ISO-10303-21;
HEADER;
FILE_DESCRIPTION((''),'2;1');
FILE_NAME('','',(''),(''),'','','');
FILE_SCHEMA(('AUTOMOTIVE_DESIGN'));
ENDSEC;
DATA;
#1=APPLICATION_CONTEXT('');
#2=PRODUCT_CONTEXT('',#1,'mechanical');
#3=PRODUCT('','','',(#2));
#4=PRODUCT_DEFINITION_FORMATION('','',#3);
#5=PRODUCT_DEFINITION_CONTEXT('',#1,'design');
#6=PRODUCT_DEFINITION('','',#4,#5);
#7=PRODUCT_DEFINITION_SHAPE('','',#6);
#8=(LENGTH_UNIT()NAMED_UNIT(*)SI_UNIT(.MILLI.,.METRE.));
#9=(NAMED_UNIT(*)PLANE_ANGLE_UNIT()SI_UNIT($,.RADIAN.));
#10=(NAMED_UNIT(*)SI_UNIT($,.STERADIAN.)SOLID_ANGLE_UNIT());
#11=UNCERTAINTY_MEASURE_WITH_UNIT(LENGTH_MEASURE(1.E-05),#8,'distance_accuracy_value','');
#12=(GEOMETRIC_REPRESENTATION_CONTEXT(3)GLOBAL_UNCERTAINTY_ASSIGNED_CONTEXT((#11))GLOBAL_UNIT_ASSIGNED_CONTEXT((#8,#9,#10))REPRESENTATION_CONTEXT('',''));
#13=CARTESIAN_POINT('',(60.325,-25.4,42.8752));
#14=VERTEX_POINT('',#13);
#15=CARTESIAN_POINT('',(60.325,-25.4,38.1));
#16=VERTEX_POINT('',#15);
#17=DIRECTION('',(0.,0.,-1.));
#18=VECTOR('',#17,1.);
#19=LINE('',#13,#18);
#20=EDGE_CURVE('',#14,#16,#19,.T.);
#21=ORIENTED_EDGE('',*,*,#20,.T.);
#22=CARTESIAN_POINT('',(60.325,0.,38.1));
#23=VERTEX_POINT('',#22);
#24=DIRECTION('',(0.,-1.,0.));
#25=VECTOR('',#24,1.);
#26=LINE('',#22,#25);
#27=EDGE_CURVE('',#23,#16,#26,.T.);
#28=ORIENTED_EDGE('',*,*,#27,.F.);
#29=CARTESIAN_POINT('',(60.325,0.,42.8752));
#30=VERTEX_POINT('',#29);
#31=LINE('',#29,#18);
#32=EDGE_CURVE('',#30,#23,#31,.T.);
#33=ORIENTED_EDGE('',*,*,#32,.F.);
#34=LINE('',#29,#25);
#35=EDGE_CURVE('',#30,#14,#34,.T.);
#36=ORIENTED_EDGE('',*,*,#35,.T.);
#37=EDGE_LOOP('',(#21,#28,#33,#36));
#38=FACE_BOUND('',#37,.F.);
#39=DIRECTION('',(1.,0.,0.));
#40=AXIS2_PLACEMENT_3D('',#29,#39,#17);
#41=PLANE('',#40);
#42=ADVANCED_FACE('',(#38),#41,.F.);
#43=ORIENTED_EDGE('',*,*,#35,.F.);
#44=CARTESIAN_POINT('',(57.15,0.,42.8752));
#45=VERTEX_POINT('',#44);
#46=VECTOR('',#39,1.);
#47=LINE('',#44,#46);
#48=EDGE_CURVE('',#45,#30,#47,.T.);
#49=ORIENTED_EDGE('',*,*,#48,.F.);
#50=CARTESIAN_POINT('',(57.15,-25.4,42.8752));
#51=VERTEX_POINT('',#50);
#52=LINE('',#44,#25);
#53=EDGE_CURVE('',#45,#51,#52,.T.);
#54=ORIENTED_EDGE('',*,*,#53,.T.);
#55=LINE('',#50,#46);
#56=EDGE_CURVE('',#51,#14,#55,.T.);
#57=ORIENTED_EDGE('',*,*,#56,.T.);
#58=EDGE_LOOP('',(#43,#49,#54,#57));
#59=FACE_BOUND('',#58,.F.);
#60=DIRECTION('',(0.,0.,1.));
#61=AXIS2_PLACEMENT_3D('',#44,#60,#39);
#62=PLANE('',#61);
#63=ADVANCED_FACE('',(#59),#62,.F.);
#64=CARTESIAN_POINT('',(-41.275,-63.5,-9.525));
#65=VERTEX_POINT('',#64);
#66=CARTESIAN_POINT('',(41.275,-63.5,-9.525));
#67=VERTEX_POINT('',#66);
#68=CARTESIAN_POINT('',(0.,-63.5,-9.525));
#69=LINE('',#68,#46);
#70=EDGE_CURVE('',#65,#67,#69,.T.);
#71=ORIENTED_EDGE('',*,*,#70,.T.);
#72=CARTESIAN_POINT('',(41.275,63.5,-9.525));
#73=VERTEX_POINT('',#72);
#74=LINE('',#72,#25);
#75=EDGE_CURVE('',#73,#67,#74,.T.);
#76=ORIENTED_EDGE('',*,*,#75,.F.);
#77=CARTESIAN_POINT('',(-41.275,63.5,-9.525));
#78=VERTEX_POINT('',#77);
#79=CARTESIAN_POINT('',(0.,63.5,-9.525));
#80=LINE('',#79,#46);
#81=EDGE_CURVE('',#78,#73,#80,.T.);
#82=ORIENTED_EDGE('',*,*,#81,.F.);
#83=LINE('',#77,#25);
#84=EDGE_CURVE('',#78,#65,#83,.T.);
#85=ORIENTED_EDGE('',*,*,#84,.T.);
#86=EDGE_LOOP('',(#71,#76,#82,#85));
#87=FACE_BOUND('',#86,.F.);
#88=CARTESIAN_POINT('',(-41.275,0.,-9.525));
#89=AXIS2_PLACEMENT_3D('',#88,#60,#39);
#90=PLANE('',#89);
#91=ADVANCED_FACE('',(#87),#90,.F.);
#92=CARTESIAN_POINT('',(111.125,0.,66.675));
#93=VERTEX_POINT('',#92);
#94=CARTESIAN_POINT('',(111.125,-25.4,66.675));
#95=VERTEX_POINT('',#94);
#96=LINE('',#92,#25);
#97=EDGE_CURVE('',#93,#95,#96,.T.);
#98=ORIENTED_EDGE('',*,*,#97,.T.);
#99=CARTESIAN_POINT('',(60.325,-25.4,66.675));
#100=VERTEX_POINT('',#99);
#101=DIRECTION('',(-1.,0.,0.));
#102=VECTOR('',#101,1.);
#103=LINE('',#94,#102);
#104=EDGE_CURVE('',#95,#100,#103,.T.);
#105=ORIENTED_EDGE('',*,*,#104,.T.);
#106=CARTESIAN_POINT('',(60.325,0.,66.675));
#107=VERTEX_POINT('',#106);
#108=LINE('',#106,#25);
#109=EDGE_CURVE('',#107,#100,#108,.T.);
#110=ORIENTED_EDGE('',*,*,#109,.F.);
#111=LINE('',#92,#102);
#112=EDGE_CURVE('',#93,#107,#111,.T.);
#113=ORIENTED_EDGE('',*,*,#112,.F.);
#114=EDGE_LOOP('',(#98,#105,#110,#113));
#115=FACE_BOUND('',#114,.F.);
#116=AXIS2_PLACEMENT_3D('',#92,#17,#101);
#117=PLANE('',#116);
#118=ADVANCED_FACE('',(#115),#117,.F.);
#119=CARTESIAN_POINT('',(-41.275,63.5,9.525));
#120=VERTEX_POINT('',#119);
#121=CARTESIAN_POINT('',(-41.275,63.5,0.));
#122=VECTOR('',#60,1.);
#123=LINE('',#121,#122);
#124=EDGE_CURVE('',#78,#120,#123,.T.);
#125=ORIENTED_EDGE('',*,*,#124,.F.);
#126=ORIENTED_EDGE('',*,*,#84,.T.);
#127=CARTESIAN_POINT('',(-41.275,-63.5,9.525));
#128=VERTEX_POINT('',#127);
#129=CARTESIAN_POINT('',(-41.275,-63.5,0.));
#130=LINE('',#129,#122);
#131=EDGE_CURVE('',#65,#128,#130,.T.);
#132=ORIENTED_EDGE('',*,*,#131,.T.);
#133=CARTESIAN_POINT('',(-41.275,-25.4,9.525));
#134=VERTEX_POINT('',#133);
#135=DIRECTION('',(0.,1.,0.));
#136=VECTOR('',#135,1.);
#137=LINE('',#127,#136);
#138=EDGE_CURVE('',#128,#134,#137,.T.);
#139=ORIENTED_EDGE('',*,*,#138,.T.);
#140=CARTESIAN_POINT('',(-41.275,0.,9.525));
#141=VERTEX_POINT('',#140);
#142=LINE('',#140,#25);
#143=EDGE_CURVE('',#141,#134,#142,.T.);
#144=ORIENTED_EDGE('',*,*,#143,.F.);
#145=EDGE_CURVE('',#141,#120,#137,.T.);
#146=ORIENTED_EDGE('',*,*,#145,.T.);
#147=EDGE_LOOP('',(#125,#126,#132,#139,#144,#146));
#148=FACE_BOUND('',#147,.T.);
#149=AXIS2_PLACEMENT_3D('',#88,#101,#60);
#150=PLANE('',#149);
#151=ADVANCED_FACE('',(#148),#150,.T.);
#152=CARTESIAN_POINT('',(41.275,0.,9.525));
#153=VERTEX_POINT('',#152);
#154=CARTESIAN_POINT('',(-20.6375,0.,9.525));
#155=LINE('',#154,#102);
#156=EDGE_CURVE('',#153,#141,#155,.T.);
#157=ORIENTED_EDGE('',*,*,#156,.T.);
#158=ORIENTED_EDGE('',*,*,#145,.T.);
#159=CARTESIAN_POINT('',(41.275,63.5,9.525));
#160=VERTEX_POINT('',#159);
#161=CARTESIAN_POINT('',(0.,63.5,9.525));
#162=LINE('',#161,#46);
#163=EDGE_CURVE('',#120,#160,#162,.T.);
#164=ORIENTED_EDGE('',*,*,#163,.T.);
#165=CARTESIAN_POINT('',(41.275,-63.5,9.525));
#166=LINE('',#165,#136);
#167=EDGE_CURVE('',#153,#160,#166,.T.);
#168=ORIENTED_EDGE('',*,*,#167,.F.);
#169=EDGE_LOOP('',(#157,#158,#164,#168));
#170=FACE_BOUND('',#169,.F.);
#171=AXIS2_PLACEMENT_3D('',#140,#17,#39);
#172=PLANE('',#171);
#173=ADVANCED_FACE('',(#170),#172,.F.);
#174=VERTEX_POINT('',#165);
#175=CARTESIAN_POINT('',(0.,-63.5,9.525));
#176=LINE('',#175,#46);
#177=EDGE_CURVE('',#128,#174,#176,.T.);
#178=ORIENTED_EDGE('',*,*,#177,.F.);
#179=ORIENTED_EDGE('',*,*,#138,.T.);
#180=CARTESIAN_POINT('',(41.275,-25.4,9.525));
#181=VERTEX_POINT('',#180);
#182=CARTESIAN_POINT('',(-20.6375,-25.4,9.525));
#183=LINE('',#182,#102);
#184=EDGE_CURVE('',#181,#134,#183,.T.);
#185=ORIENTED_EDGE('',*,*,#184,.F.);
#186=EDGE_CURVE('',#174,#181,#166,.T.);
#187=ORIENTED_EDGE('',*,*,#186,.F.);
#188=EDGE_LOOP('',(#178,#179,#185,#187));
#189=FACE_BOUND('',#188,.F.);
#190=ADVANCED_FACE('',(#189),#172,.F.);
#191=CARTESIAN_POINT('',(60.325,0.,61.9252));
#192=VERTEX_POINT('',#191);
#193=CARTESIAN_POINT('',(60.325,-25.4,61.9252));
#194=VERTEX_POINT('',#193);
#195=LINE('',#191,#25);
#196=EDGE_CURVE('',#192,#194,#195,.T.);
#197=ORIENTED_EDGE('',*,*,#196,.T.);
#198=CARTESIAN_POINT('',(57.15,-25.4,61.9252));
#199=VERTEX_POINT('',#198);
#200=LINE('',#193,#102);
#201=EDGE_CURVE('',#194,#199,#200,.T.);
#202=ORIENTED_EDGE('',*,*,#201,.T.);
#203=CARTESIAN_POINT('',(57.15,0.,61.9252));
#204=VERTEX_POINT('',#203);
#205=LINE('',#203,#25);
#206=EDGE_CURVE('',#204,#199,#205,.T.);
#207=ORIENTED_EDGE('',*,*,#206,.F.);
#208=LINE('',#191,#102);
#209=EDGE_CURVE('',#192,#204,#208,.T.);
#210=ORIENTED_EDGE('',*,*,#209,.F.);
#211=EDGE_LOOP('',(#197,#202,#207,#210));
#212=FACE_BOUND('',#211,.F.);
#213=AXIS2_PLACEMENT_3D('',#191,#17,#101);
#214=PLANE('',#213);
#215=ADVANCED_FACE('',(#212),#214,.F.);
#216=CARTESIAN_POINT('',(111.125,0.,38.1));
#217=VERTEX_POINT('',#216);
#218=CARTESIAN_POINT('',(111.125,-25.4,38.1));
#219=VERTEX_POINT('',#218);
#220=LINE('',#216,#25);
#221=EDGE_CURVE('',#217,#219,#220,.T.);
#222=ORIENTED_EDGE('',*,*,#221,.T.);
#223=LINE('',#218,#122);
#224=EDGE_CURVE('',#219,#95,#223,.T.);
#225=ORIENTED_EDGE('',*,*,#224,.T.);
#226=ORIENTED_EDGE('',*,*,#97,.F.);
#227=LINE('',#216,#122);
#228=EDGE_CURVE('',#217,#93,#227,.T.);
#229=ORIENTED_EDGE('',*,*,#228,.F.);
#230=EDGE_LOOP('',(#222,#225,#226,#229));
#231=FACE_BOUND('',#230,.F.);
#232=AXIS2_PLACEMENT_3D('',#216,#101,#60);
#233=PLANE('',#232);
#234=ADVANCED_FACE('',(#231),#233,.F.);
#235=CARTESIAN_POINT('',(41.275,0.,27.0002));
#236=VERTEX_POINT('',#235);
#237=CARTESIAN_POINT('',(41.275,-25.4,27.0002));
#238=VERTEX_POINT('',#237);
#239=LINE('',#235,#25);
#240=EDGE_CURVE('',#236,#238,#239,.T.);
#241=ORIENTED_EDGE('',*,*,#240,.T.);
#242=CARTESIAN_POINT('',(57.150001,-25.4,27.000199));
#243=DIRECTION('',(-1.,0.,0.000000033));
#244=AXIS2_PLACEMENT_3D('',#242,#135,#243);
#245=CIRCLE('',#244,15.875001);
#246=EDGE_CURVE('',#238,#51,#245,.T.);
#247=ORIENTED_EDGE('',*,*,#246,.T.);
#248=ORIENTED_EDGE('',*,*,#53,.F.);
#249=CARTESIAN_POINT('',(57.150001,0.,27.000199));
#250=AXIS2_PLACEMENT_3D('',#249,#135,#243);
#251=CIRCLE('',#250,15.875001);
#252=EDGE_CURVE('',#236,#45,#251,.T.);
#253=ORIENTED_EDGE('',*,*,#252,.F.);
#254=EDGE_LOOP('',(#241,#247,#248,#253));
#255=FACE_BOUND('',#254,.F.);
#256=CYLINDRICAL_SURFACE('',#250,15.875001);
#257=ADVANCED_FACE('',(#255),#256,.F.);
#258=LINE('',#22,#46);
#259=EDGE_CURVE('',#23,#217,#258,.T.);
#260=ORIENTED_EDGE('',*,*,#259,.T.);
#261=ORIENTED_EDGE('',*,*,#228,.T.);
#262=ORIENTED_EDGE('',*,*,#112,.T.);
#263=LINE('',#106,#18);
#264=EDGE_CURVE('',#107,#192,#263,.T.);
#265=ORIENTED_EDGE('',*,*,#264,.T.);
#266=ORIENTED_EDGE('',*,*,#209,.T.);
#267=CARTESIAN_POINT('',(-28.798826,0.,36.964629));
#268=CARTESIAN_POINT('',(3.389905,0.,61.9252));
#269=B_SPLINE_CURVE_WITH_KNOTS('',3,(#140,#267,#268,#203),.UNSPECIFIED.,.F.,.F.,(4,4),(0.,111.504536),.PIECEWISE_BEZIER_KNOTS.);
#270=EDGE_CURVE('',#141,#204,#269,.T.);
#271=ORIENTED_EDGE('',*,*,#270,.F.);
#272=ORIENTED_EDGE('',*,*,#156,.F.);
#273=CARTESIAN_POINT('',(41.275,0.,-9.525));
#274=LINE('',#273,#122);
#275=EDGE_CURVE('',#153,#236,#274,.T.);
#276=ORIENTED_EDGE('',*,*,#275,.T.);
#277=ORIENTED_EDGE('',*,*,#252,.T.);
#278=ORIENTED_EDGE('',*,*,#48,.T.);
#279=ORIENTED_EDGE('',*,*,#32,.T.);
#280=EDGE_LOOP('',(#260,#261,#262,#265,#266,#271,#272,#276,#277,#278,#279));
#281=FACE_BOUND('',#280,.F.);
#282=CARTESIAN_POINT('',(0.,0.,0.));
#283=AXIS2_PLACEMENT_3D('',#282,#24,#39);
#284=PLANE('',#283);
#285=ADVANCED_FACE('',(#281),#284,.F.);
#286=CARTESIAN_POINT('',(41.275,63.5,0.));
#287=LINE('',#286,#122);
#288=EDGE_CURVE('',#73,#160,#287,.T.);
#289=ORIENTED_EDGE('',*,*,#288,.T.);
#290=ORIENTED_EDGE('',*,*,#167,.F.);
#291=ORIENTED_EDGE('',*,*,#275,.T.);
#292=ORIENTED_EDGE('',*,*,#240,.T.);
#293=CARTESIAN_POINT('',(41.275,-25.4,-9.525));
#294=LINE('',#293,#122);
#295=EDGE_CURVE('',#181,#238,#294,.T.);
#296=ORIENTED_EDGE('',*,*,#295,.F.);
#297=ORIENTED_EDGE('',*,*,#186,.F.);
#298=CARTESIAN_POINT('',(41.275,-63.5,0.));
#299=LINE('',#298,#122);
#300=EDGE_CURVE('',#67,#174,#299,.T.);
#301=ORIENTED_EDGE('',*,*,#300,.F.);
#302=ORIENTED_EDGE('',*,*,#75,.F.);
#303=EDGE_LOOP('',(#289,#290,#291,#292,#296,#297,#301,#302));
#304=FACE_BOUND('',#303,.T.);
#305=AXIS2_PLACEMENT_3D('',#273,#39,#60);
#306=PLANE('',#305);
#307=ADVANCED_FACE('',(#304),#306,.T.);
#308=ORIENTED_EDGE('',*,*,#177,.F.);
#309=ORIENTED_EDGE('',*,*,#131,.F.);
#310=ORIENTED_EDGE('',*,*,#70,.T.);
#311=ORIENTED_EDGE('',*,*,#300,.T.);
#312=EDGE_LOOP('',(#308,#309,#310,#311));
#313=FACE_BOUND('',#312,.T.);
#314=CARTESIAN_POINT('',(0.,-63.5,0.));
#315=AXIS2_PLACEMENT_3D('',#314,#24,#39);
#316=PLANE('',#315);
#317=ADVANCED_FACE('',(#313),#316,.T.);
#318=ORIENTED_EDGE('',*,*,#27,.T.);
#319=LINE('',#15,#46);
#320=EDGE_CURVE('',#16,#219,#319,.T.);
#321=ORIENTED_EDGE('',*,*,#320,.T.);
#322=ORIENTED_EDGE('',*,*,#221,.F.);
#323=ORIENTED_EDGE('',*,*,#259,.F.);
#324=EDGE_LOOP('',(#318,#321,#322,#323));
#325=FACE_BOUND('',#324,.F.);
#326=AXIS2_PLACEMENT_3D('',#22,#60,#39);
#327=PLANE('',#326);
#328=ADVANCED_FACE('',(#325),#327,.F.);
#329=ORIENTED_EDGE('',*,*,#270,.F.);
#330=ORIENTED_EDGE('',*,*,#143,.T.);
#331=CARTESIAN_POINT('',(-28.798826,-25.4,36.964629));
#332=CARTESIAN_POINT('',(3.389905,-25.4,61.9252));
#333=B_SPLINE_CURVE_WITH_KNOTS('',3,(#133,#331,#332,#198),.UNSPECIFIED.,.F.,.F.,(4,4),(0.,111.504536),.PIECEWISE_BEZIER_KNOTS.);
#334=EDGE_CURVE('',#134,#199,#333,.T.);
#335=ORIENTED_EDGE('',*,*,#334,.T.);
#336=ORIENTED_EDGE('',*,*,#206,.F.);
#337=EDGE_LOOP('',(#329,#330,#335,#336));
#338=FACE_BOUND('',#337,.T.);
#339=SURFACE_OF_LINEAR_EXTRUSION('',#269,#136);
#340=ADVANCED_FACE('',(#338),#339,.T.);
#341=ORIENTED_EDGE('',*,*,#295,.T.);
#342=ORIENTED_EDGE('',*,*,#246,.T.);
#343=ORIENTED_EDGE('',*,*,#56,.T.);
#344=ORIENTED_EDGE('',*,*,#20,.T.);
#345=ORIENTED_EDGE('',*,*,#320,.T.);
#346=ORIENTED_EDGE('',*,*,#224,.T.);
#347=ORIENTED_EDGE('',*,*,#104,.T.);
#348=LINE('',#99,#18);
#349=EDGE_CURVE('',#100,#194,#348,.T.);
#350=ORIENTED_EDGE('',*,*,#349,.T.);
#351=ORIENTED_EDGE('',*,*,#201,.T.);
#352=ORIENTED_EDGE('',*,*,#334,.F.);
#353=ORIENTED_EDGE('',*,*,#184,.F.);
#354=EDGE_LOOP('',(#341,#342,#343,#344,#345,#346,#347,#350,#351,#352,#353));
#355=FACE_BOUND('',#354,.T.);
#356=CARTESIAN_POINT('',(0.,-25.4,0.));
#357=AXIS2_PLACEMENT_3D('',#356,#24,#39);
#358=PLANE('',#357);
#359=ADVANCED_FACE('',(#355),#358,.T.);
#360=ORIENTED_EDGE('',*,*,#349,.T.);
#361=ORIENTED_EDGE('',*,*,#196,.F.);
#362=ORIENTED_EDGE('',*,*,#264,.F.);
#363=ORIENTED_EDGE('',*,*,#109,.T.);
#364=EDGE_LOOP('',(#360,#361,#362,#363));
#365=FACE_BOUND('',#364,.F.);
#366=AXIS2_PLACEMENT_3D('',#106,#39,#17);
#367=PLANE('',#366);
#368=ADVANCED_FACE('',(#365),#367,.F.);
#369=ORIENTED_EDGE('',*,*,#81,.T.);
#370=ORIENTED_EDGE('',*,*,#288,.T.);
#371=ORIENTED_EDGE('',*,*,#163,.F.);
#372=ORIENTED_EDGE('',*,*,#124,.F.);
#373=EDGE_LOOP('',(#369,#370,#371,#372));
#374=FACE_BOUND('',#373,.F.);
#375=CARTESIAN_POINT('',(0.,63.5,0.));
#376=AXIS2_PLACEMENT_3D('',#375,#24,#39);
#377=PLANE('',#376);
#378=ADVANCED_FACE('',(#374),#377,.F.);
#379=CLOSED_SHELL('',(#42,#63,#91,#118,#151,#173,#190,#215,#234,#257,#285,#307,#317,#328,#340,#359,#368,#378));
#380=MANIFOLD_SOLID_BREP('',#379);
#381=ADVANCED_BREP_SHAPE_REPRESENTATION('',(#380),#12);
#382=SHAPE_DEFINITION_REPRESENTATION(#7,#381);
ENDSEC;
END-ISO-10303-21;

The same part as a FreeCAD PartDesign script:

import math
import FreeCAD as App
import Part
import Sketcher
from FreeCAD import Vector
Q = App.Units.Quantity

doc = App.newDocument("Part")
body = doc.addObject("PartDesign::Body", "Body")

sketch1 = doc.addObject("Sketcher::SketchObject", "Sketch")
body.addObject(sketch1)
sketch1.AttachmentSupport = (doc.XZ_Plane, [""])
sketch1.MapMode = "FlatFace"
sketch1.addGeometry([
    Part.LineSegment(Vector(-41, 10, 0), Vector(-41, -10, 0)),
    Part.LineSegment(Vector(-41, -10, 0), Vector(41, -10, 0)),
    Part.LineSegment(Vector(41, -10, 0), Vector(41, 10, 0)),
    Part.LineSegment(Vector(41, 10, 0), Vector(-41, 10, 0)),
], False)
sketch1.addConstraint([
    Sketcher.Constraint("Coincident", 0, 2, 1, 1),
    Sketcher.Constraint("Coincident", 1, 2, 2, 1),
    Sketcher.Constraint("Coincident", 2, 2, 3, 1),
    Sketcher.Constraint("Coincident", 3, 2, 0, 1),
    Sketcher.Constraint("Vertical", 0),
    Sketcher.Constraint("Horizontal", 1),
    Sketcher.Constraint("Vertical", 2),
    Sketcher.Constraint("Horizontal", 3),
    Sketcher.Constraint("Symmetric", 0, 2, 2, 2, -1, 1),
    Sketcher.Constraint("DistanceX", 1, 1, 1, 2, Q("3.25 in")),
    Sketcher.Constraint("DistanceY", 0, 2, 0, 1, Q("0.75 in")),
])
pad1 = doc.addObject("PartDesign::Pad", "Pad")
body.addObject(pad1)
pad1.Profile = sketch1
pad1.Length = Q("5 in")
pad1.Midplane = True

sketch2 = doc.addObject("Sketcher::SketchObject", "Sketch001")
body.addObject(sketch2)
sketch2.AttachmentSupport = (doc.XZ_Plane, [""])
sketch2.MapMode = "FlatFace"
sketch2.addGeometry([
    Part.LineSegment(Vector(-41.275, 9.525, 0), Vector(-41.275, -9.525, 0)),
    Part.LineSegment(Vector(-41.275, -9.525, 0), Vector(41.275, -9.525, 0)),
    Part.LineSegment(Vector(41.275, -9.525, 0), Vector(41.275, 27.0002, 0)),
    Part.ArcOfCircle(Part.Circle(Vector(57.150001, 27.000199, 0), Vector(0, 0, 1), 15.875001), math.radians(90.000002), math.radians(179.999998)),
    Part.LineSegment(Vector(57.15, 42.8752, 0), Vector(60.325, 42.8752, 0)),
    Part.LineSegment(Vector(60.325, 42.8752, 0), Vector(60.325, 38.1, 0)),
    Part.LineSegment(Vector(60.325, 38.1, 0), Vector(111.125, 38.1, 0)),
    Part.LineSegment(Vector(111.125, 38.1, 0), Vector(111.125, 66.675, 0)),
    Part.LineSegment(Vector(111.125, 66.675, 0), Vector(60.325, 66.675, 0)),
    Part.LineSegment(Vector(60.325, 66.675, 0), Vector(60.325, 61.9252, 0)),
    Part.LineSegment(Vector(60.325, 61.9252, 0), Vector(57.15, 61.9252, 0)),
    Part.BSplineCurve([Vector(-41.275, 9.525, 0), Vector(-28.798826, 36.964629, 0), Vector(3.389905, 61.9252, 0), Vector(57.15, 61.9252, 0)], [4, 4], [0, 111.504536], False, 3, [1, 1, 1, 1], False),
], False)
sketch2.addConstraint([
    Sketcher.Constraint("Block", 11),
    Sketcher.Constraint("Coincident", 0, 2, 1, 1),
    Sketcher.Constraint("Coincident", 1, 2, 2, 1),
    Sketcher.Constraint("Tangent", 2, 2, 3, 2),
    Sketcher.Constraint("Tangent", 3, 1, 4, 1),
    Sketcher.Constraint("Coincident", 4, 2, 5, 1),
    Sketcher.Constraint("Coincident", 5, 2, 6, 1),
    Sketcher.Constraint("Coincident", 6, 2, 7, 1),
    Sketcher.Constraint("Coincident", 7, 2, 8, 1),
    Sketcher.Constraint("Coincident", 8, 2, 9, 1),
    Sketcher.Constraint("Coincident", 9, 2, 10, 1),
    Sketcher.Constraint("Coincident", 10, 2, 11, 2),
    Sketcher.Constraint("Coincident", 11, 1, 0, 1),
    Sketcher.Constraint("Vertical", 0),
    Sketcher.Constraint("Horizontal", 1),
    Sketcher.Constraint("Vertical", 2),
    Sketcher.Constraint("Horizontal", 4),
    Sketcher.Constraint("Vertical", 5),
    Sketcher.Constraint("Horizontal", 6),
    Sketcher.Constraint("Vertical", 7),
    Sketcher.Constraint("Horizontal", 8),
    Sketcher.Constraint("Vertical", 9),
    Sketcher.Constraint("Horizontal", 10),
    Sketcher.Constraint("Vertical", 5, 2, 8, 2),
    Sketcher.Constraint("Vertical", 3, 1, 10, 2),
    Sketcher.Constraint("DistanceX", 6, 1, 6, 2, Q("2 in")),
    Sketcher.Constraint("Radius", 3, Q("0.625 in")),
    Sketcher.Constraint("DistanceX", 0, 2, 4, 2, Q("4 in")),
    Sketcher.Constraint("DistanceY", 0, 2, 0, 1, Q("0.75 in")),
    Sketcher.Constraint("DistanceY", -1, 1, 5, 2, Q("1.5 in")),
    Sketcher.Constraint("DistanceY", 2, 1, 2, 2, Q("1.438 in")),
    Sketcher.Constraint("DistanceY", 7, 1, 7, 2, Q("1.125 in")),
])
pad2 = doc.addObject("PartDesign::Pad", "Pad001")
body.addObject(pad2)
pad2.Profile = sketch2
pad2.Length = Q("1 in")

doc.recompute()
